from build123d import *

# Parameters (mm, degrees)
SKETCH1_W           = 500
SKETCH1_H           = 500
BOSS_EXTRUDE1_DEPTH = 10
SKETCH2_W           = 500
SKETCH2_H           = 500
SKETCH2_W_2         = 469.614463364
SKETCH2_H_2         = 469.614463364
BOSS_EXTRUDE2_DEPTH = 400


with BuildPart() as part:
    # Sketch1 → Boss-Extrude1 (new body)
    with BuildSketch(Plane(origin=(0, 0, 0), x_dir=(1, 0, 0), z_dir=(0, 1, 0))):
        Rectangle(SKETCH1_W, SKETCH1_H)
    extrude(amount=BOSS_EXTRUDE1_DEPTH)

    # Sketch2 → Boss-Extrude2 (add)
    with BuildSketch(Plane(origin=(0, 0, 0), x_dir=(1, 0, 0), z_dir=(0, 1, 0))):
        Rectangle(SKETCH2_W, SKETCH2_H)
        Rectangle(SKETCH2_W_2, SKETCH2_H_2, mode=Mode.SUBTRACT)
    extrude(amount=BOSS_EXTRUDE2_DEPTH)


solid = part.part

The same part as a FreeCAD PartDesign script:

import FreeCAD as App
import Part
import Sketcher
Q = App.Units.Quantity

doc = App.newDocument("Part")
body = doc.addObject("PartDesign::Body", "Body")

# Sketch on XZ plane
sketch1 = body.newObject("Sketcher::SketchObject", "Sketch")
sketch1.AttachmentSupport = (doc.getObject("XZ_Plane"), [""])
sketch1.MapMode = "FlatFace"
sketch1.addGeometry([
    Part.LineSegment(App.Vector(-250, -250, 0), App.Vector(-250, 250, 0)),
    Part.LineSegment(App.Vector(-250, 250, 0), App.Vector(250, 250, 0)),
    Part.LineSegment(App.Vector(250, 250, 0), App.Vector(250, -250, 0)),
    Part.LineSegment(App.Vector(250, -250, 0), App.Vector(-250, -250, 0)),
], False)
sketch1.addConstraint([
    Sketcher.Constraint("Coincident", 0, 2, 1, 1),
    Sketcher.Constraint("Coincident", 1, 2, 2, 1),
    Sketcher.Constraint("Coincident", 2, 2, 3, 1),
    Sketcher.Constraint("Coincident", 3, 2, 0, 1),
    Sketcher.Constraint("Vertical", 0),
    Sketcher.Constraint("Horizontal", 1),
    Sketcher.Constraint("Vertical", 2),
    Sketcher.Constraint("Horizontal", 3),
    Sketcher.Constraint("Symmetric", 0, 2, 2, 2, -1, 1),
    Sketcher.Constraint("Equal", 3, 0),
    Sketcher.Constraint("DistanceX", 1, 1, 1, 2, Q("500 mm")),
])
pad1 = body.newObject("PartDesign::Pad", "Pad")
pad1.Profile = sketch1
pad1.Length = 10
pad1.Reversed = True

# Sketch on XZ plane
sketch2 = body.newObject("Sketcher::SketchObject", "Sketch001")
sketch2.AttachmentSupport = (doc.getObject("XZ_Plane"), [""])
sketch2.MapMode = "FlatFace"
sketch2.addGeometry([
    Part.LineSegment(App.Vector(-250, -250, 0), App.Vector(-250, 250, 0)),  # 0
    Part.LineSegment(App.Vector(-250, 250, 0), App.Vector(250, 250, 0)),  # 1
    Part.LineSegment(App.Vector(250, 250, 0), App.Vector(250, -250, 0)),  # 2
    Part.LineSegment(App.Vector(250, -250, 0), App.Vector(-250, -250, 0)),  # 3
    Part.LineSegment(App.Vector(234.807232, 234.807232, 0), App.Vector(-234.807232, 234.807232, 0)),  # 4
    Part.LineSegment(App.Vector(-234.807232, 234.807232, 0), App.Vector(-234.807232, -234.807232, 0)),  # 5
    Part.LineSegment(App.Vector(-234.807232, -234.807232, 0), App.Vector(234.807232, -234.807232, 0)),  # 6
    Part.LineSegment(App.Vector(234.807232, -234.807232, 0), App.Vector(234.807232, 234.807232, 0)),  # 7
], False)
sketch2.addConstraint([
    Sketcher.Constraint("Coincident", 0, 2, 1, 1),
    Sketcher.Constraint("Coincident", 1, 2, 2, 1),
    Sketcher.Constraint("Coincident", 2, 2, 3, 1),
    Sketcher.Constraint("Coincident", 3, 2, 0, 1),
    Sketcher.Constraint("Coincident", 4, 2, 5, 1),
    Sketcher.Constraint("Coincident", 5, 2, 6, 1),
    Sketcher.Constraint("Coincident", 6, 2, 7, 1),
    Sketcher.Constraint("Coincident", 7, 2, 4, 1),
    Sketcher.Constraint("Vertical", 0),
    Sketcher.Constraint("Horizontal", 1),
    Sketcher.Constraint("Vertical", 2),
    Sketcher.Constraint("Horizontal", 3),
    Sketcher.Constraint("Horizontal", 4),
    Sketcher.Constraint("Vertical", 5),
    Sketcher.Constraint("Horizontal", 6),
    Sketcher.Constraint("Vertical", 7),
    Sketcher.Constraint("Symmetric", 0, 2, 2, 2, -1, 1),
    Sketcher.Constraint("Symmetric", 4, 2, 6, 2, -1, 1),
    Sketcher.Constraint("Equal", 3, 0),
    Sketcher.Constraint("Equal", 6, 5),
    Sketcher.Constraint("DistanceX", 1, 1, 1, 2, Q("500 mm")),
    Sketcher.Constraint("DistanceX", 4, 2, 4, 1, Q("469.614463 mm")),
])
pad2 = body.newObject("PartDesign::Pad", "Pad001")
pad2.Profile = sketch2
pad2.Length = 400
pad2.Reversed = True

doc.recompute()
